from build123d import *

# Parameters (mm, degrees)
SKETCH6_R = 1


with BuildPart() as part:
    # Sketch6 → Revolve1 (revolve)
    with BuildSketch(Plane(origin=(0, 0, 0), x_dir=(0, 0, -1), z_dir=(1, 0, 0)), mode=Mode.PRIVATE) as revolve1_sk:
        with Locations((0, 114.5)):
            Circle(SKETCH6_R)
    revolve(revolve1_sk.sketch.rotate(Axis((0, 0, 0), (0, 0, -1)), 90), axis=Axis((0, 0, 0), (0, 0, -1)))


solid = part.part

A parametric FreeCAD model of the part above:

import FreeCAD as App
import Part
import Sketcher
from FreeCAD import Vector
Q = App.Units.Quantity

doc = App.newDocument("Part")
body = doc.addObject("PartDesign::Body", "Body")

sketch1 = doc.addObject("Sketcher::SketchObject", "Sketch")
body.addObject(sketch1)
sketch1.AttachmentSupport = (doc.YZ_Plane, [""])
sketch1.MapMode = "FlatFace"
sketch1.addGeometry(Part.Circle(Vector(114.5, 0, 0), Vector(0, 0, 1), 1), False)
sketch1.addConstraint([
    Sketcher.Constraint("PointOnObject", 0, 3, -1),
    Sketcher.Constraint("Diameter", 0, Q("2 mm")),
    Sketcher.Constraint("DistanceX", -1, 1, 0, 3, Q("114.5 mm")),
])
revolution = doc.addObject("PartDesign::Revolution", "Revolution")
body.addObject(revolution)
revolution.Profile = sketch1
revolution.ReferenceAxis = (sketch1, ["V_Axis"])
revolution.Angle = 360

doc.recompute()
